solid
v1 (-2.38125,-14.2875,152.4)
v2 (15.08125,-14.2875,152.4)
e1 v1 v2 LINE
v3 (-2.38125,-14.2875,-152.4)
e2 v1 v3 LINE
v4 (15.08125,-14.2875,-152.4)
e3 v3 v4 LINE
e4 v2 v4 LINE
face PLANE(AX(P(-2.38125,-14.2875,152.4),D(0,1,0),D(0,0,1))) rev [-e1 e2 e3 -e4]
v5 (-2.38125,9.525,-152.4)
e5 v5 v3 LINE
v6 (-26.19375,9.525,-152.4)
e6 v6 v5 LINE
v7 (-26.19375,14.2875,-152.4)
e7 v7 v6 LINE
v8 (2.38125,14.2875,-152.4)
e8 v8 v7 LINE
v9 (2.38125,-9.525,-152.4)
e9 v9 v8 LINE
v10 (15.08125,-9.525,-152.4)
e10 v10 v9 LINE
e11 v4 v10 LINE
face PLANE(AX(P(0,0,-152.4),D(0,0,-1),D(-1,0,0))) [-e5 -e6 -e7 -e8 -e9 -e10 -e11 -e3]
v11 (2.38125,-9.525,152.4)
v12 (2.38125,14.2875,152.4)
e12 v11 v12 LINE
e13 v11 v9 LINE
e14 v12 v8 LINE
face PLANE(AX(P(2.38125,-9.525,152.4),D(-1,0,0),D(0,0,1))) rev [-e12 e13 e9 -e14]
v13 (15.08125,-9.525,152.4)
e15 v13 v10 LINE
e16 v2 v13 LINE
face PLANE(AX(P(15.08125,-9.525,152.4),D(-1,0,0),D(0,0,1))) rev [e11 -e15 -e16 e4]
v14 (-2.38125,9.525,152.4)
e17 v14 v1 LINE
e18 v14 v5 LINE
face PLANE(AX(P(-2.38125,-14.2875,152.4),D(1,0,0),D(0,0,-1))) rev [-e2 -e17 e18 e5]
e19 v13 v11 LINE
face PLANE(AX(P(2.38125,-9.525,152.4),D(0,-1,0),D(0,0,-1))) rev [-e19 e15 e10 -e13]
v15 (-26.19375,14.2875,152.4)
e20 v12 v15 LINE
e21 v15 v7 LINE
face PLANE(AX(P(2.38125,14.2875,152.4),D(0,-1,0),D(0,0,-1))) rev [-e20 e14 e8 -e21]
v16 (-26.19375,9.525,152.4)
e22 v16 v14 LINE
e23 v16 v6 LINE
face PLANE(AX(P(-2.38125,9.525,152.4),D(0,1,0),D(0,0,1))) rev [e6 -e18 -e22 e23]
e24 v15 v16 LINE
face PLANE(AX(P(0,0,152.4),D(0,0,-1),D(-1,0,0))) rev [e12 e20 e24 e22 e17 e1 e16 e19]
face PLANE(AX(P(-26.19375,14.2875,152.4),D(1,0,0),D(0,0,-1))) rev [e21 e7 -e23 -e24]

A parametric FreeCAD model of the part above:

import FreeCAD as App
import Part
import Sketcher

V = App.Vector
Q = App.Units.Quantity

doc = App.newDocument("Part")
body = doc.addObject("PartDesign::Body", "Body")

sketch1 = body.newObject("Sketcher::SketchObject", "Sketch")
sketch1.AttachmentSupport = (doc.getObject("XY_Plane"), [""])
sketch1.MapMode = "FlatFace"
sketch1.addGeometry([
    Part.LineSegment(V(15.08125, -14.2875, 0), V(15.08125, -9.525, 0)),
    Part.LineSegment(V(15.08125, -9.525, 0), V(2.38125, -9.525, 0)),
    Part.LineSegment(V(2.38125, -9.525, 0), V(2.38125, 14.2875, 0)),
    Part.LineSegment(V(2.38125, 14.2875, 0), V(-26.19375, 14.2875, 0)),
    Part.LineSegment(V(-26.19375, 14.2875, 0), V(-26.19375, 9.525, 0)),
    Part.LineSegment(V(-26.19375, 9.525, 0), V(-2.38125, 9.525, 0)),
    Part.LineSegment(V(-2.38125, 9.525, 0), V(-2.38125, -14.2875, 0)),
    Part.LineSegment(V(-2.38125, -14.2875, 0), V(15.08125, -14.2875, 0)),
], False)
sketch1.addConstraint([
    Sketcher.Constraint("Coincident", 0, 2, 1, 1),
    Sketcher.Constraint("Coincident", 1, 2, 2, 1),
    Sketcher.Constraint("Coincident", 2, 2, 3, 1),
    Sketcher.Constraint("Coincident", 3, 2, 4, 1),
    Sketcher.Constraint("Coincident", 4, 2, 5, 1),
    Sketcher.Constraint("Coincident", 5, 2, 6, 1),
    Sketcher.Constraint("Coincident", 6, 2, 7, 1),
    Sketcher.Constraint("Coincident", 7, 2, 0, 1),
    Sketcher.Constraint("Vertical", 0),
    Sketcher.Constraint("Horizontal", 1),
    Sketcher.Constraint("Vertical", 2),
    Sketcher.Constraint("Horizontal", 3),
    Sketcher.Constraint("Vertical", 4),
    Sketcher.Constraint("Horizontal", 5),
    Sketcher.Constraint("Vertical", 6),
    Sketcher.Constraint("Horizontal", 7),
    Sketcher.Constraint("Symmetric", 1, 2, 5, 2, -1, 1),
    Sketcher.Constraint("Equal", 5, 2),
    Sketcher.Constraint("Equal", 0, 4),
    Sketcher.Constraint("DistanceX", 1, 2, 1, 1, Q("0.5 in")),
    Sketcher.Constraint("DistanceX", 3, 2, 3, 1, Q("1.125 in")),
    Sketcher.Constraint("DistanceX", 5, 1, 5, 2, Q("0.9375 in")),
    Sketcher.Constraint("DistanceY", 0, 1, 0, 2, Q("0.1875 in")),
])
pad1 = body.newObject("PartDesign::Pad", "Pad")
pad1.Profile = sketch1
pad1.Type = "TwoLengths"
pad1.Length = Q("6 in")
pad1.Length2 = Q("6 in")

doc.recompute()
